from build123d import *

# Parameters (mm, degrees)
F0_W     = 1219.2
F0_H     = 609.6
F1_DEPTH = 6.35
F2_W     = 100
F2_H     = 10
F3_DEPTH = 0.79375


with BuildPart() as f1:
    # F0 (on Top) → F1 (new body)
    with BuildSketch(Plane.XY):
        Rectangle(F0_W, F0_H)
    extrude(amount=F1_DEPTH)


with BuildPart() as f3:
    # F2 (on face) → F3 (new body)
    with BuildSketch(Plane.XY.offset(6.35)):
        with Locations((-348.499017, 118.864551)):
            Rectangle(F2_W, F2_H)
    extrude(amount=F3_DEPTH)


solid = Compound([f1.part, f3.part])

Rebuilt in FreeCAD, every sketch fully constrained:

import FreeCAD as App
import Part
import Sketcher
Q = App.Units.Quantity


def add_polygon(sketch, points):
    """Adds a closed chain of lines whose ends are joined by coincident constraints."""
    first, n = sketch.GeometryCount, len(points)
    for a, b in zip(points, points[1:] + points[:1]):
        sketch.addGeometry(Part.LineSegment(App.Vector(*a, 0), App.Vector(*b, 0)), False)
    for i in range(n):
        sketch.addConstraint(Sketcher.Constraint("Coincident", first + i, 2, first + (i + 1) % n, 1))

doc = App.newDocument("Part")
body = doc.addObject("PartDesign::Body", "Body")

# Sketch on XY plane
sketch1 = body.newObject("Sketcher::SketchObject", "Sketch")
sketch1.AttachmentSupport = (doc.getObject("XY_Plane"), [""])
sketch1.MapMode = "FlatFace"
add_polygon(sketch1, [(-609.6, 304.8), (-609.6, -304.8), (609.6, -304.8), (609.6, 304.8)])  # lines 0-3
sketch1.addConstraint([
    Sketcher.Constraint("Vertical", 0),
    Sketcher.Constraint("Horizontal", 1),
    Sketcher.Constraint("Vertical", 2),
    Sketcher.Constraint("Horizontal", 3),
    Sketcher.Constraint("Symmetric", 0, 2, 2, 2, -1, 1),
    Sketcher.Constraint("DistanceX", 1, 1, 1, 2, Q("48 in")),
    Sketcher.Constraint("DistanceY", 0, 2, 0, 1, Q("24 in")),
])
pad1 = body.newObject("PartDesign::Pad", "Pad")
pad1.Profile = sketch1
pad1.Length = Q("0.25 in")
body2 = doc.addObject("PartDesign::Body", "Body001")

# Sketch on XY plane
sketch2 = body2.newObject("Sketcher::SketchObject", "Sketch001")
sketch2.AttachmentSupport = (doc.getObject("XY_Plane001"), [""])
sketch2.MapMode = "FlatFace"
sketch2.AttachmentOffset = App.Placement(App.Vector(0, 0, 0.25 * 25.4), App.Rotation())
add_polygon(sketch2, [(-398.499017, 123.864551), (-398.499017, 113.864551), (-298.499017, 113.864551), (-298.499017, 123.864551)])  # lines 0-3
sketch2.addConstraint([
    Sketcher.Constraint("Vertical", 0),
    Sketcher.Constraint("Horizontal", 1),
    Sketcher.Constraint("Vertical", 2),
    Sketcher.Constraint("Horizontal", 3),
    Sketcher.Constraint("DistanceX", 1, 1, 1, 2, Q("100 mm")),
    Sketcher.Constraint("DistanceY", 0, 2, 0, 1, Q("10 mm")),
    Sketcher.Constraint("DistanceY", -1, 1, 0, 2, Q("113.864551 mm")),
    Sketcher.Constraint("DistanceX", 0, 2, -1, 1, Q("398.499017 mm")),
])
pad2 = body2.newObject("PartDesign::Pad", "Pad001")
pad2.Profile = sketch2
pad2.Length = Q("0.03125 in")

doc.recompute()
